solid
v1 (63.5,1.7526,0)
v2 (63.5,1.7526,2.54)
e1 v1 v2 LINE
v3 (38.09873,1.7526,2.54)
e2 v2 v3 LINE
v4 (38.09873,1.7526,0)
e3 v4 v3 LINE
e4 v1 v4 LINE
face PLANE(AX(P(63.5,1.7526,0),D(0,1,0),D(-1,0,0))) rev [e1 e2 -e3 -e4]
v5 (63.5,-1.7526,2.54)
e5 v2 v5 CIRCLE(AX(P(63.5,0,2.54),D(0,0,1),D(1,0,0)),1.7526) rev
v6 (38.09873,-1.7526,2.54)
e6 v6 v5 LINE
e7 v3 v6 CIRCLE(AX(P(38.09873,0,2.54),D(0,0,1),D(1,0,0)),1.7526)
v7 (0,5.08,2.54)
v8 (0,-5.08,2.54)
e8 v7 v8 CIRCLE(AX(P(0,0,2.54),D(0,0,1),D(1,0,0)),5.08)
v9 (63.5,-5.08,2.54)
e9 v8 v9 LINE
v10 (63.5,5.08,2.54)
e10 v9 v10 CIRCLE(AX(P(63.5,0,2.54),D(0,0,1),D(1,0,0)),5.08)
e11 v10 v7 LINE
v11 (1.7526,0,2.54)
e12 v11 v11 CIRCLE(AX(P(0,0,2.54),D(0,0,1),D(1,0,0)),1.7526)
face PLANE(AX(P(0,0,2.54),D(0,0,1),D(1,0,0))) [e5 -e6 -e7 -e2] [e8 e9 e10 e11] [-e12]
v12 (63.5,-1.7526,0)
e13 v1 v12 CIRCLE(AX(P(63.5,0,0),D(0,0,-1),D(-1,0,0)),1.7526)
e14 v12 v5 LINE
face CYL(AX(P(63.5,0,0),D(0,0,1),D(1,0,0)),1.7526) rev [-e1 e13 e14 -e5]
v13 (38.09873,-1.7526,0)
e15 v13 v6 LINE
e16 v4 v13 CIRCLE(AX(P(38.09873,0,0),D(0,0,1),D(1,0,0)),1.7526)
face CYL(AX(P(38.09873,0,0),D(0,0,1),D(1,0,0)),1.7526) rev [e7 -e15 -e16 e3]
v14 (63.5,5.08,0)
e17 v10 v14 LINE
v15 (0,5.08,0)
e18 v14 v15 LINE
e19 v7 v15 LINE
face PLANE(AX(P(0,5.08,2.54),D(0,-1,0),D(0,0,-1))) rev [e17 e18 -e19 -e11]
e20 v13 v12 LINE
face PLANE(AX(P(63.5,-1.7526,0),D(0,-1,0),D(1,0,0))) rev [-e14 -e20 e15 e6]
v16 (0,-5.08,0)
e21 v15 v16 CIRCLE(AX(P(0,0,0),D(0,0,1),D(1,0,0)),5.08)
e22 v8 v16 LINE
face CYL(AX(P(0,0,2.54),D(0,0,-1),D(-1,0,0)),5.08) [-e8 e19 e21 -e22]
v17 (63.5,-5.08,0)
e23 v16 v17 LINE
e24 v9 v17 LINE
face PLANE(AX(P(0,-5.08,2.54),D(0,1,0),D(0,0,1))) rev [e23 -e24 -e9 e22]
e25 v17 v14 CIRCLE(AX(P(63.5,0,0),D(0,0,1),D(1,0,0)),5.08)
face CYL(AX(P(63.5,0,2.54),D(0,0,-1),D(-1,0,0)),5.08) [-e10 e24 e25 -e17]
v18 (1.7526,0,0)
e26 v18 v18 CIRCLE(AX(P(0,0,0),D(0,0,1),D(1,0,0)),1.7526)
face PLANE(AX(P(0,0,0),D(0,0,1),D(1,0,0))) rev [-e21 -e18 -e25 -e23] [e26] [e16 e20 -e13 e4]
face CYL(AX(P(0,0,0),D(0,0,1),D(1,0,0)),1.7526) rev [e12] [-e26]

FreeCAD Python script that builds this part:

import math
import FreeCAD as App
import Part
import Sketcher

V = App.Vector
Q = App.Units.Quantity

doc = App.newDocument("Part")
body = doc.addObject("PartDesign::Body", "Body")

# Sketch on XY plane
sketch1 = doc.addObject("Sketcher::SketchObject", "Sketch")
body.addObject(sketch1)
sketch1.AttachmentSupport = (doc.XY_Plane, [""])
sketch1.MapMode = "FlatFace"
sketch1.addGeometry(Part.LineSegment(V(63.5, 5.08, 0), V(0, 5.08, 0)), False)
sketch1.addGeometry(Part.ArcOfCircle(Part.Circle(V(0, 0, 0), V(0, 0, 1), 5.08), math.radians(90), math.radians(270)), False)
sketch1.addGeometry(Part.LineSegment(V(0, -5.08, 0), V(63.5, -5.08, 0)), False)
sketch1.addGeometry(Part.ArcOfCircle(Part.Circle(V(63.5, 0, 0), V(0, 0, 1), 5.08), math.radians(-90), math.radians(90)), False)
sketch1.addConstraint(Sketcher.Constraint("Tangent", 0, 2, 1, 1))
sketch1.addConstraint(Sketcher.Constraint("Tangent", 1, 2, 2, 1))
sketch1.addConstraint(Sketcher.Constraint("Tangent", 2, 2, 3, 1))
sketch1.addConstraint(Sketcher.Constraint("Tangent", 3, 2, 0, 1))
sketch1.addConstraint(Sketcher.Constraint("Horizontal", 0))
sketch1.addConstraint(Sketcher.Constraint("Horizontal", 2))
sketch1.addConstraint(Sketcher.Constraint("Coincident", 1, 3, -1, 1))
sketch1.addConstraint(Sketcher.Constraint("Radius", 1, Q("0.2 in")))
sketch1.addConstraint(Sketcher.Constraint("DistanceX", 0, 2, 0, 1, Q("2.5 in")))
pad1 = doc.addObject("PartDesign::Pad", "Pad")
body.addObject(pad1)
pad1.Profile = sketch1
pad1.Length = Q("0.1 in")

# Sketch on XY plane
sketch2 = doc.addObject("Sketcher::SketchObject", "Sketch001")
body.addObject(sketch2)
sketch2.AttachmentSupport = (doc.XY_Plane, [""])
sketch2.MapMode = "FlatFace"
sketch2.AttachmentOffset = App.Placement(V(0, 0, -1), App.Rotation())
sketch2.addGeometry(Part.Circle(V(0, 0, 0), V(0, 0, 1), 1.7526), False)
sketch2.addConstraint(Sketcher.Constraint("Coincident", 0, 3, -1, 1))
sketch2.addConstraint(Sketcher.Constraint("Diameter", 0, Q("0.138 in")))
pocket1 = doc.addObject("PartDesign::Pocket", "Pocket")
body.addObject(pocket1)
pocket1.Profile = sketch2
pocket1.Length = 4.54
pocket1.Reversed = True
doc.recompute()

datumplane = doc.addObject("PartDesign::Plane", "DatumPlane")
body.addObject(datumplane)
datumplane.AttachmentSupport = (doc.YZ_Plane, [""])
datumplane.MapMode = "FlatFace"
datumplane.AttachmentOffset = App.Placement(V(0, 0, 1.25 * 25.4), App.Rotation())
mirrored = doc.addObject("PartDesign::Mirrored", "Mirrored")
body.addObject(mirrored)
mirrored.Originals = [pocket1]
mirrored.MirrorPlane = (datumplane, [""])
body.Tip = mirrored

# Sketch on XY plane
sketch3 = doc.addObject("Sketcher::SketchObject", "Sketch002")
body.addObject(sketch3)
sketch3.AttachmentSupport = (doc.XY_Plane, [""])
sketch3.MapMode = "FlatFace"
sketch3.AttachmentOffset = App.Placement(V(0, 0, 0.1 * 25.4), App.Rotation())
sketch3.addGeometry(Part.LineSegment(V(38.09873, -1.7526, 0), V(63.5, -1.7526, 0)), False)
sketch3.addGeometry(Part.ArcOfCircle(Part.Circle(V(63.5, 0, 0), V(0, 0, 1), 1.7526), math.radians(-90), math.radians(90)), False)
sketch3.addGeometry(Part.LineSegment(V(63.5, 1.7526, 0), V(38.09873, 1.7526, 0)), False)
sketch3.addGeometry(Part.ArcOfCircle(Part.Circle(V(38.09873, 0, 0), V(0, 0, 1), 1.7526), math.radians(90), math.radians(270)), False)
sketch3.addConstraint(Sketcher.Constraint("Tangent", 0, 2, 1, 1))
sketch3.addConstraint(Sketcher.Constraint("Tangent", 1, 2, 2, 1))
sketch3.addConstraint(Sketcher.Constraint("Tangent", 2, 2, 3, 1))
sketch3.addConstraint(Sketcher.Constraint("Tangent", 3, 2, 0, 1))
sketch3.addConstraint(Sketcher.Constraint("Horizontal", 0))
sketch3.addConstraint(Sketcher.Constraint("Horizontal", 2))
sketch3.addConstraint(Sketcher.Constraint("PointOnObject", 1, 3, -1))
sketch3.addConstraint(Sketcher.Constraint("Radius", 1, Q("0.069 in")))
sketch3.addConstraint(Sketcher.Constraint("DistanceX", -1, 1, 1, 3, Q("2.5 in")))
sketch3.addConstraint(Sketcher.Constraint("DistanceX", 0, 1, 0, 2, Q("25.40127 mm")))
pocket2 = doc.addObject("PartDesign::Pocket", "Pocket001")
body.addObject(pocket2)
pocket2.Profile = sketch3
pocket2.Type = "ThroughAll"
pocket2.Midplane = True

doc.recompute()
